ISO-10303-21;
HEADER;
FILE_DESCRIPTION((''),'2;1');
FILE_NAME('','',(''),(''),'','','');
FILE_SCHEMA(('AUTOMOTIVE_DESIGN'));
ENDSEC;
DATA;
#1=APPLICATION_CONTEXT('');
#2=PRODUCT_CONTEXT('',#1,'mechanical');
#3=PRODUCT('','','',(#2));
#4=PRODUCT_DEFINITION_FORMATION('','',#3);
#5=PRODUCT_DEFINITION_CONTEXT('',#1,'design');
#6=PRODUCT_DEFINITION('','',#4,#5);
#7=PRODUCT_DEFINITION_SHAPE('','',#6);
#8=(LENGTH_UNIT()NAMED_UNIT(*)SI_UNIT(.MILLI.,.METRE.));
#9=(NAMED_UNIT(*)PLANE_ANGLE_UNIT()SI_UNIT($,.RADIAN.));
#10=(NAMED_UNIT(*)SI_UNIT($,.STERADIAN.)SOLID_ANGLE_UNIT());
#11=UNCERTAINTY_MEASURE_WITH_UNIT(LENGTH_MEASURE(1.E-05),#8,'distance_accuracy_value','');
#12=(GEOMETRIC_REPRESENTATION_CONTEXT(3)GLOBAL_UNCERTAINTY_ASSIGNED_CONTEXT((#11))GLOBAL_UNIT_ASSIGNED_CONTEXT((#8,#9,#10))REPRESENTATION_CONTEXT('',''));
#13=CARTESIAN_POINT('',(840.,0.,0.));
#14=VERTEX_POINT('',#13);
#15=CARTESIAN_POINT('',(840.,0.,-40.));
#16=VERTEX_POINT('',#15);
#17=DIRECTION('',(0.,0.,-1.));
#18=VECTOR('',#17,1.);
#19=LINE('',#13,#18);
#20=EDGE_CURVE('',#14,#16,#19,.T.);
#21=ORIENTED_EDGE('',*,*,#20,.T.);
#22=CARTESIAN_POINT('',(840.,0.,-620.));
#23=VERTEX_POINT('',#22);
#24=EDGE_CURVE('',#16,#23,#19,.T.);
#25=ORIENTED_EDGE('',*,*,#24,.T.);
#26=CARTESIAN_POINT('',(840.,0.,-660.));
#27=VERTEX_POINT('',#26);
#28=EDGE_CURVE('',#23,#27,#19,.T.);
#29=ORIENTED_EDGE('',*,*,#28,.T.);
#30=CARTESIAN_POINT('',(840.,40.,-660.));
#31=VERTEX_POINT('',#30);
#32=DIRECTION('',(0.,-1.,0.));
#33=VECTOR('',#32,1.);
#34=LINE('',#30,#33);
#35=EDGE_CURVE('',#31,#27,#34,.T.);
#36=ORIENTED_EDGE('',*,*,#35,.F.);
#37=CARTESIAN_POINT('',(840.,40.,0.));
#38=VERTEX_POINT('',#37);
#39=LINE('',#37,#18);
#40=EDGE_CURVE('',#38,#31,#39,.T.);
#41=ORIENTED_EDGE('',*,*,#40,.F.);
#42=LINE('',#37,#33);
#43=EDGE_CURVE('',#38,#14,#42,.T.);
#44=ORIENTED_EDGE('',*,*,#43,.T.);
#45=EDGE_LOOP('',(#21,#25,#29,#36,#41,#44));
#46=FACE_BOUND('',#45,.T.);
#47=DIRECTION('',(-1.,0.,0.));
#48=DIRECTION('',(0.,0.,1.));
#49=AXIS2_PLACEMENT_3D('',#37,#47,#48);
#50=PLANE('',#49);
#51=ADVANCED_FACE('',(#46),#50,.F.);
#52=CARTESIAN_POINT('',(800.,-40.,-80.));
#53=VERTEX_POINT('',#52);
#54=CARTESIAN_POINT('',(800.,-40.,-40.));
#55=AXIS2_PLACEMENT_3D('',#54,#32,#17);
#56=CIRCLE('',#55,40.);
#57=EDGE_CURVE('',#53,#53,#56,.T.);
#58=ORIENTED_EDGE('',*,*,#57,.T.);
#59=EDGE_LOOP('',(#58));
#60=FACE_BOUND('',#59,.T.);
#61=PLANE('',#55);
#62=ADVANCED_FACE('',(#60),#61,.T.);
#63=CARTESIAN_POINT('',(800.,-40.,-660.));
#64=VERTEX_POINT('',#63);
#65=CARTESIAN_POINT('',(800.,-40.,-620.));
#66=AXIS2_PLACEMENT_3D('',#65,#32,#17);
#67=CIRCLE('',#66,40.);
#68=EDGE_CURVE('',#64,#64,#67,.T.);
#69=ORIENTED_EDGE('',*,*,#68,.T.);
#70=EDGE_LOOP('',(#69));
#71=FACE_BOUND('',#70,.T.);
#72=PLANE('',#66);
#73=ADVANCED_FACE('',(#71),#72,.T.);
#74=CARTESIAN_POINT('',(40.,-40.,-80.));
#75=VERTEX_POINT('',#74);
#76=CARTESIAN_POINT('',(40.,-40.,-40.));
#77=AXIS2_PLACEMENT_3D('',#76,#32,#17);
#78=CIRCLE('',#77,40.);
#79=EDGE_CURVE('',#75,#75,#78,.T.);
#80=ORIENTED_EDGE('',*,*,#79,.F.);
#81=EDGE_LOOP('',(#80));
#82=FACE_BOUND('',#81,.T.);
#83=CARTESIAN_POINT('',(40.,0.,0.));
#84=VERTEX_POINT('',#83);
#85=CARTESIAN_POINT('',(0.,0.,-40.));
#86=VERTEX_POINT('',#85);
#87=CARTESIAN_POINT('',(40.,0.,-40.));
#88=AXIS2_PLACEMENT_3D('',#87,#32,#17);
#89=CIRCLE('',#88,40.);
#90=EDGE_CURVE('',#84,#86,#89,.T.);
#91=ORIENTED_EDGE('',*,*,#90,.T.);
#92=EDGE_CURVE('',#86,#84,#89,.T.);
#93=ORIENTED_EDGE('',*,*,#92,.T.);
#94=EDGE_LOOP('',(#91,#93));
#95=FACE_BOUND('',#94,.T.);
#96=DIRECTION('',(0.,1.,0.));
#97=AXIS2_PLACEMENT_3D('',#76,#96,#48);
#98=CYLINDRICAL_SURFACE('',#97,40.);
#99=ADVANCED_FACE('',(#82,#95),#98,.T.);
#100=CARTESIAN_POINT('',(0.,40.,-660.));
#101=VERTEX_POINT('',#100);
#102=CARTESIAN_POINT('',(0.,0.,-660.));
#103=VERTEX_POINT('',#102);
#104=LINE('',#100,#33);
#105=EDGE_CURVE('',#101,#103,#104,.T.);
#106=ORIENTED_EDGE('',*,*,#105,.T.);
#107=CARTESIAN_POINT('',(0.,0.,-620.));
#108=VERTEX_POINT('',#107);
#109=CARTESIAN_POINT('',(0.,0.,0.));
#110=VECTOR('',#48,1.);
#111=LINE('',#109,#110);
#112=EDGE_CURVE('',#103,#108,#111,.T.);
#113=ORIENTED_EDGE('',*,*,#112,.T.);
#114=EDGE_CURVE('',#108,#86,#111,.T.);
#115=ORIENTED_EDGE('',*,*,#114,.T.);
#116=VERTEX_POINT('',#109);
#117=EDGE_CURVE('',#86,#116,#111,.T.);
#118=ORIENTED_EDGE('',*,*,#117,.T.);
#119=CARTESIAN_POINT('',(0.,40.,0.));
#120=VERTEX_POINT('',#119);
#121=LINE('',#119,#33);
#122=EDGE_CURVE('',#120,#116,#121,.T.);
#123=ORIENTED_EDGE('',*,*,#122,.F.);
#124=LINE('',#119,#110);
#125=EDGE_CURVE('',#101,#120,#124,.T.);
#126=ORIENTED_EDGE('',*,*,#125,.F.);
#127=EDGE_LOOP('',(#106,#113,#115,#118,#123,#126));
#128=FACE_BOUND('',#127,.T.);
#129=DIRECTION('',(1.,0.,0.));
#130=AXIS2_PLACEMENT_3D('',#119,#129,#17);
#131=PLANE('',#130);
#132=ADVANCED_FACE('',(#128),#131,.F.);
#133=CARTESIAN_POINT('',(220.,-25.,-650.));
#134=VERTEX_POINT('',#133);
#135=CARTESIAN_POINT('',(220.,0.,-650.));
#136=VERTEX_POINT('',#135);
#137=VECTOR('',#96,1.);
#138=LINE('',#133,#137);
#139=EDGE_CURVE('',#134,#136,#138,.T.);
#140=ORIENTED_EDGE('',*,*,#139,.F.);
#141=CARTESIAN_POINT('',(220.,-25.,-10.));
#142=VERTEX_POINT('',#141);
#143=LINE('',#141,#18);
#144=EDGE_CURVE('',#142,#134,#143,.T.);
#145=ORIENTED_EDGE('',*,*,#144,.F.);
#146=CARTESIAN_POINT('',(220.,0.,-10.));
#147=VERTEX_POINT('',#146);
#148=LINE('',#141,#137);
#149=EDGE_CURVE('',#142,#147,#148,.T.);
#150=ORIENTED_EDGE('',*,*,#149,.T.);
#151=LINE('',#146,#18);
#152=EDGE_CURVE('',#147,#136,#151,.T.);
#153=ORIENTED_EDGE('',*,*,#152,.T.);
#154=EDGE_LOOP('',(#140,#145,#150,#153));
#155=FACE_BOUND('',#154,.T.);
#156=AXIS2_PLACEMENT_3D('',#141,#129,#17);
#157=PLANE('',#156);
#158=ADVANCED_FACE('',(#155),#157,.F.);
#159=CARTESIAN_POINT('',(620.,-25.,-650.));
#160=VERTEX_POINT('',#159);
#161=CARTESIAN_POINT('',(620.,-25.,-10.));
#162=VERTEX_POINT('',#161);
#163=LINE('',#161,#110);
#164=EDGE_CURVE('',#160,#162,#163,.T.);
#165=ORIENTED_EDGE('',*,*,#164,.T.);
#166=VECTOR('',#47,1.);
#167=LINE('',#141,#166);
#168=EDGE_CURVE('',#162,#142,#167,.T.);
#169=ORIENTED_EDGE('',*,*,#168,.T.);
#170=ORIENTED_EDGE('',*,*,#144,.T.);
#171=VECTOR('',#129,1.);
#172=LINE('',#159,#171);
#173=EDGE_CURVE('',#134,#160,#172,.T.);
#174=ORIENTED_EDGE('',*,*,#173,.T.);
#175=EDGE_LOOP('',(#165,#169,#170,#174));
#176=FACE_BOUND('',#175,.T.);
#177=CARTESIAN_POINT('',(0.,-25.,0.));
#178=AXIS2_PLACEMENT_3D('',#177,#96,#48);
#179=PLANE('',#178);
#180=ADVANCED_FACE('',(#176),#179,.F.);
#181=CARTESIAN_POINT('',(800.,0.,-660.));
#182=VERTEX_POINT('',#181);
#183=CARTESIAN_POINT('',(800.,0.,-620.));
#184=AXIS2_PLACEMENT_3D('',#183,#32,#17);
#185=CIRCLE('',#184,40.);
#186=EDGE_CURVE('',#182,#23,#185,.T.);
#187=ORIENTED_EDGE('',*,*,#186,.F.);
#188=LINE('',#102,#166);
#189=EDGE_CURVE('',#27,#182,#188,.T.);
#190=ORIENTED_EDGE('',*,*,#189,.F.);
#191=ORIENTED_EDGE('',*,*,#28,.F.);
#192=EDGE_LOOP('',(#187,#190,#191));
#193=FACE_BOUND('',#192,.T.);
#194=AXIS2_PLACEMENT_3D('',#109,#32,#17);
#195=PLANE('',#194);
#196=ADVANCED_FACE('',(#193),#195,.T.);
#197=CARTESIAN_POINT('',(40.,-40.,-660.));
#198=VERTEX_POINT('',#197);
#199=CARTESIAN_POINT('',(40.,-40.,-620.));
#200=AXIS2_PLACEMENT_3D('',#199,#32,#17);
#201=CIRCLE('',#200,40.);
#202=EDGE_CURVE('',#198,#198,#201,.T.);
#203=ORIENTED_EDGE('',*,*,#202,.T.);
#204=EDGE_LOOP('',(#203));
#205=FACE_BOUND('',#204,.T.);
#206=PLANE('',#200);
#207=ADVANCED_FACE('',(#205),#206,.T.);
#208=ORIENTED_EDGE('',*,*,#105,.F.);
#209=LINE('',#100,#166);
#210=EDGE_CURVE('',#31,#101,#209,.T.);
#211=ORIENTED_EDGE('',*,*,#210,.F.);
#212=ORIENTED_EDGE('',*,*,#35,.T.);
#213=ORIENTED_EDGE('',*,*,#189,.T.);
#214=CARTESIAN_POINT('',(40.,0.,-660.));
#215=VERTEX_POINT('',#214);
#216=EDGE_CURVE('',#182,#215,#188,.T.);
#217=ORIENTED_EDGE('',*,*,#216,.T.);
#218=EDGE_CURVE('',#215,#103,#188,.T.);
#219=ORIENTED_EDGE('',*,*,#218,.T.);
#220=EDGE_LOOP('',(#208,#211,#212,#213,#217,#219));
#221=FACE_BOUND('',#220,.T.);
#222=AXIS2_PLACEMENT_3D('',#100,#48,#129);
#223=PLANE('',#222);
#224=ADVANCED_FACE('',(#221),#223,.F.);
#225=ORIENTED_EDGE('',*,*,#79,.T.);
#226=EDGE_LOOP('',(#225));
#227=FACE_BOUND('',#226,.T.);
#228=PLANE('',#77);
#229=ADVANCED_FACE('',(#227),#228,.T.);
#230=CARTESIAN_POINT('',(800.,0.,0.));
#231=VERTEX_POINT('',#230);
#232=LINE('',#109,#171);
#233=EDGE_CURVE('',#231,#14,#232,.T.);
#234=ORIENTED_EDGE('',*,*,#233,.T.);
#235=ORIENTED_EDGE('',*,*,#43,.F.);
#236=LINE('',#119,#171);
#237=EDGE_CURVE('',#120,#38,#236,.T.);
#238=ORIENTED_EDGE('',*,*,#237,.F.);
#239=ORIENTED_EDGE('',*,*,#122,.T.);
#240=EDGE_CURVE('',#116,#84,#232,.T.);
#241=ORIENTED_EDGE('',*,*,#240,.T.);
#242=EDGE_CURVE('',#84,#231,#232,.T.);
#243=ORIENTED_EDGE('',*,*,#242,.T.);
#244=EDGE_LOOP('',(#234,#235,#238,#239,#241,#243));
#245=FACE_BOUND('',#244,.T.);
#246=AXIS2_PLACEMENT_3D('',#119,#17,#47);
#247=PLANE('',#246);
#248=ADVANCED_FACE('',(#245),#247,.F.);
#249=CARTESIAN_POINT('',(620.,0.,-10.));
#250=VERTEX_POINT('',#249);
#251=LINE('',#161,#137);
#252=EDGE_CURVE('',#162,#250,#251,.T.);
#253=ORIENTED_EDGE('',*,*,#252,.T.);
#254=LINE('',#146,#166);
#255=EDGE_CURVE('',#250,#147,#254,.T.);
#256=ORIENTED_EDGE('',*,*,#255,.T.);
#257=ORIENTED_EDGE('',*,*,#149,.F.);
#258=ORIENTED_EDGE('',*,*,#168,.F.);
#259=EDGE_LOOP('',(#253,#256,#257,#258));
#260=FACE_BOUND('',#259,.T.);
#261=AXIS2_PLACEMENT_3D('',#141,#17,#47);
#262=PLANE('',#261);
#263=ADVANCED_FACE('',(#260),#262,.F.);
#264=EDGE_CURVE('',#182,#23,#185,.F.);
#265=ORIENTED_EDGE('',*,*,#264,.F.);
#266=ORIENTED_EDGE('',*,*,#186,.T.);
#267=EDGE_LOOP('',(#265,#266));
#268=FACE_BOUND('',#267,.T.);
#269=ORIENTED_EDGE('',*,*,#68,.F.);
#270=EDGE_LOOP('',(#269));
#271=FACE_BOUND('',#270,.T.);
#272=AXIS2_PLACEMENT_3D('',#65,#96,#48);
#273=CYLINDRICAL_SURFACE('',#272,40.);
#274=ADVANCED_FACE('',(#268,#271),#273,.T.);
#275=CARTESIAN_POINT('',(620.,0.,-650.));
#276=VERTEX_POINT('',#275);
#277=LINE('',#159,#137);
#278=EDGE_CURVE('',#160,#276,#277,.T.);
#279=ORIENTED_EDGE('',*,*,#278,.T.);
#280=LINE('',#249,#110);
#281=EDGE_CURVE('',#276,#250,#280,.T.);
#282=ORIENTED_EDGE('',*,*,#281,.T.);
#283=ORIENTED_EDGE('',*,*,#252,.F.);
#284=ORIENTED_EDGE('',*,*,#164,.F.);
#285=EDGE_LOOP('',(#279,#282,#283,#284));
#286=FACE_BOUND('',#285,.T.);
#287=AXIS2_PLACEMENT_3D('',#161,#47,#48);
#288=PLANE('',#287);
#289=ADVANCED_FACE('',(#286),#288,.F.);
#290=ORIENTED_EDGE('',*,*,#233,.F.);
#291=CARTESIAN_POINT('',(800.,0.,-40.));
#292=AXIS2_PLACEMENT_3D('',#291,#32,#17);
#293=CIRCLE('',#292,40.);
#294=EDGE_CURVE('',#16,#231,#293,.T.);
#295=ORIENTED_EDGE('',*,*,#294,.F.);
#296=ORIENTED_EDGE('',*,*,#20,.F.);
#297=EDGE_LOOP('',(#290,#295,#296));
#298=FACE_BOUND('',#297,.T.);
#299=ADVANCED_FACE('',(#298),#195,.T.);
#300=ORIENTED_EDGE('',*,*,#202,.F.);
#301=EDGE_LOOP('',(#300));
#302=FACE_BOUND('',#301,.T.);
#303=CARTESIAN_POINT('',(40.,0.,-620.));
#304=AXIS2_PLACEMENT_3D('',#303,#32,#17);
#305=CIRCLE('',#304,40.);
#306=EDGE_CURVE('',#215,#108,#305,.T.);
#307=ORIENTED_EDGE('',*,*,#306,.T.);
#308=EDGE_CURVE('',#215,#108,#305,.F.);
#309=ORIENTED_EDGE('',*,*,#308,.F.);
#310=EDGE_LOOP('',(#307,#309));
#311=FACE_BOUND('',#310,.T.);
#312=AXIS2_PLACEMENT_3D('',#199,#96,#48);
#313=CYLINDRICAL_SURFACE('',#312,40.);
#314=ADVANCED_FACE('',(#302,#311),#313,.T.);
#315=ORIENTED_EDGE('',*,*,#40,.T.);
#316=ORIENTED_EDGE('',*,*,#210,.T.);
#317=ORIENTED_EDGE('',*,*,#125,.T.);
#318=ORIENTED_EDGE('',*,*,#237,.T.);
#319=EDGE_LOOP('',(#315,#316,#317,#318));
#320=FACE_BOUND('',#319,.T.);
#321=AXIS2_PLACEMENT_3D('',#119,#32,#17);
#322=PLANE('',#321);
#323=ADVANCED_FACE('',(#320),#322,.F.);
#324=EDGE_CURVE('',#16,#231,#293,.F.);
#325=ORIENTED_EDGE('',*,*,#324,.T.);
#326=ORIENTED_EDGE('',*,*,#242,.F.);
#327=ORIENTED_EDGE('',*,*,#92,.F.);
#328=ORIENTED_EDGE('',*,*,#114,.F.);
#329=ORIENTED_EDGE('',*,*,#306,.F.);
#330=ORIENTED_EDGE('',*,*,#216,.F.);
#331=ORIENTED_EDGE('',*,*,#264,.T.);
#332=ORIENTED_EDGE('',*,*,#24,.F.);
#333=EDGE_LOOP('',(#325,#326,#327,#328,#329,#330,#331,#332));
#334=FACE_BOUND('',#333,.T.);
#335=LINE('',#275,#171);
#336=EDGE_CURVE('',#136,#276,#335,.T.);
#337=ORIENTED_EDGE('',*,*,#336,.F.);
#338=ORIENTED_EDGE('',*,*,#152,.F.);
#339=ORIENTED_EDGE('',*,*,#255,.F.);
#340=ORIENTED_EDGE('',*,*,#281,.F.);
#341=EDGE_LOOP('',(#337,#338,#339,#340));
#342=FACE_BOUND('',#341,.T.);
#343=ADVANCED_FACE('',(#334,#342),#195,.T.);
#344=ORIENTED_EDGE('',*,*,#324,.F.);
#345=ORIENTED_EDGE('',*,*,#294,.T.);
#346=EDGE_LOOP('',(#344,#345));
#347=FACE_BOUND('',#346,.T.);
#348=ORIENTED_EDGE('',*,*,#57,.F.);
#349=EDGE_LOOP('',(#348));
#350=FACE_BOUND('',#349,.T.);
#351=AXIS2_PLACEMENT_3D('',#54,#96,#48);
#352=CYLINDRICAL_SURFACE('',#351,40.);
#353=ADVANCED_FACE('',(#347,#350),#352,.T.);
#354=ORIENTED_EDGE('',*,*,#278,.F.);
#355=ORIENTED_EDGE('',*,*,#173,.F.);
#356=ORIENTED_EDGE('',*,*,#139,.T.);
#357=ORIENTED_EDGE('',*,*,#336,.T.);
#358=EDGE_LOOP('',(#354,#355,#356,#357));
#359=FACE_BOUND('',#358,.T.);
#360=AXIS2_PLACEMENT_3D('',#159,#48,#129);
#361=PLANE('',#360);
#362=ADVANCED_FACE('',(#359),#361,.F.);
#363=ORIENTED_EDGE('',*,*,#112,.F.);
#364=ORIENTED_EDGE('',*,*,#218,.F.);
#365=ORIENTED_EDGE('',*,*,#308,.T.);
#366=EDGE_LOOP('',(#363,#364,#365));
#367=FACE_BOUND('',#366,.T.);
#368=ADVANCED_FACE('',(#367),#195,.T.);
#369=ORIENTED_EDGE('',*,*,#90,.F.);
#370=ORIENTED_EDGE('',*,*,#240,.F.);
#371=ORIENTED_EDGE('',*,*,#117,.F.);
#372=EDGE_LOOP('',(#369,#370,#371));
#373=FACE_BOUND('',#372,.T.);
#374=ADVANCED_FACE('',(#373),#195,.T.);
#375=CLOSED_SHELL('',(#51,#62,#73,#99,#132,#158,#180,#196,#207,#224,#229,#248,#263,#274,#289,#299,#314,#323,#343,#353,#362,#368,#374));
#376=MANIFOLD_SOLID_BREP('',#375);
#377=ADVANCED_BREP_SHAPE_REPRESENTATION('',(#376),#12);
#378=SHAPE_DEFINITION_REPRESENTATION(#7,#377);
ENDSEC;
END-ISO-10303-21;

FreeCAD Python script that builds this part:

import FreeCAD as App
import Part
import Sketcher
from FreeCAD import Vector


def add_polygon(sketch, points):
    """Adds a closed chain of lines whose ends are joined by coincident constraints."""
    first, n = sketch.GeometryCount, len(points)
    for a, b in zip(points, points[1:] + points[:1]):
        sketch.addGeometry(Part.LineSegment(App.Vector(*a, 0), App.Vector(*b, 0)), False)
    for i in range(n):
        sketch.addConstraint(Sketcher.Constraint("Coincident", first + i, 2, first + (i + 1) % n, 1))

doc = App.newDocument("Part")
body = doc.addObject("PartDesign::Body", "Body")

# Sketch on XZ plane
sketch1 = doc.addObject("Sketcher::SketchObject", "Sketch")
body.addObject(sketch1)
sketch1.AttachmentSupport = (doc.XZ_Plane, [""])
sketch1.MapMode = "FlatFace"
add_polygon(sketch1, [(0, -660), (0, 0), (840, 0), (840, -660)])  # lines 0-3
sketch1.addConstraint([
    Sketcher.Constraint("Vertical", 0),
    Sketcher.Constraint("Horizontal", 1),
    Sketcher.Constraint("Vertical", 2),
    Sketcher.Constraint("Horizontal", 3),
    Sketcher.Constraint("Coincident", 0, 2, -1, 1),
    Sketcher.Constraint("DistanceX", 1, 1, 1, 2, 840.0),
    Sketcher.Constraint("DistanceY", 0, 1, 0, 2, 660.0),
])
pad1 = doc.addObject("PartDesign::Pad", "Pad")
body.addObject(pad1)
pad1.Profile = sketch1
pad1.Length = 40
pad1.Reversed = True

# Sketch on XZ plane
sketch2 = doc.addObject("Sketcher::SketchObject", "Sketch001")
body.addObject(sketch2)
sketch2.AttachmentSupport = (doc.XZ_Plane, [""])
sketch2.MapMode = "FlatFace"
sketch2.addGeometry([
    Part.Circle(Vector(40, -40, 0), Vector(0, 0, 1), 40),
    Part.Circle(Vector(800, -40, 0), Vector(0, 0, 1), 40),
    Part.Circle(Vector(40, -620, 0), Vector(0, 0, 1), 40),
    Part.Circle(Vector(800, -620, 0), Vector(0, 0, 1), 40),
], False)
sketch2.addConstraint([
    Sketcher.Constraint("Equal", 0, 1),
    Sketcher.Constraint("Equal", 1, 2),
    Sketcher.Constraint("Equal", 2, 3),
    Sketcher.Constraint("Horizontal", 0, 3, 1, 3),
    Sketcher.Constraint("Horizontal", 2, 3, 3, 3),
    Sketcher.Constraint("Vertical", 0, 3, 2, 3),
    Sketcher.Constraint("Vertical", 1, 3, 3, 3),
    Sketcher.Constraint("Diameter", 0, 80.0),
    Sketcher.Constraint("DistanceX", -1, 1, 0, 3, 40.0),
    Sketcher.Constraint("DistanceY", 0, 3, -1, 1, 40.0),
    Sketcher.Constraint("DistanceX", -1, 1, 1, 3, 800.0),
    Sketcher.Constraint("DistanceY", 2, 3, -1, 1, 620.0),
])
pad2 = doc.addObject("PartDesign::Pad", "Pad001")
body.addObject(pad2)
pad2.Profile = sketch2
pad2.Length = 40

# Sketch on XZ plane
sketch3 = doc.addObject("Sketcher::SketchObject", "Sketch002")
body.addObject(sketch3)
sketch3.AttachmentSupport = (doc.XZ_Plane, [""])
sketch3.MapMode = "FlatFace"
add_polygon(sketch3, [(220, -10), (220, -650), (620, -650), (620, -10)])  # lines 0-3
sketch3.addConstraint([
    Sketcher.Constraint("Vertical", 0),
    Sketcher.Constraint("Horizontal", 1),
    Sketcher.Constraint("Vertical", 2),
    Sketcher.Constraint("Horizontal", 3),
    Sketcher.Constraint("DistanceX", 1, 1, 1, 2, 400.0),
    Sketcher.Constraint("DistanceY", 0, 2, 0, 1, 640.0),
    Sketcher.Constraint("DistanceX", -1, 1, 0, 2, 220.0),
    Sketcher.Constraint("DistanceY", 0, 2, -1, 1, 650.0),
])
pad3 = doc.addObject("PartDesign::Pad", "Pad002")
body.addObject(pad3)
pad3.Profile = sketch3
pad3.Length = 25

doc.recompute()
